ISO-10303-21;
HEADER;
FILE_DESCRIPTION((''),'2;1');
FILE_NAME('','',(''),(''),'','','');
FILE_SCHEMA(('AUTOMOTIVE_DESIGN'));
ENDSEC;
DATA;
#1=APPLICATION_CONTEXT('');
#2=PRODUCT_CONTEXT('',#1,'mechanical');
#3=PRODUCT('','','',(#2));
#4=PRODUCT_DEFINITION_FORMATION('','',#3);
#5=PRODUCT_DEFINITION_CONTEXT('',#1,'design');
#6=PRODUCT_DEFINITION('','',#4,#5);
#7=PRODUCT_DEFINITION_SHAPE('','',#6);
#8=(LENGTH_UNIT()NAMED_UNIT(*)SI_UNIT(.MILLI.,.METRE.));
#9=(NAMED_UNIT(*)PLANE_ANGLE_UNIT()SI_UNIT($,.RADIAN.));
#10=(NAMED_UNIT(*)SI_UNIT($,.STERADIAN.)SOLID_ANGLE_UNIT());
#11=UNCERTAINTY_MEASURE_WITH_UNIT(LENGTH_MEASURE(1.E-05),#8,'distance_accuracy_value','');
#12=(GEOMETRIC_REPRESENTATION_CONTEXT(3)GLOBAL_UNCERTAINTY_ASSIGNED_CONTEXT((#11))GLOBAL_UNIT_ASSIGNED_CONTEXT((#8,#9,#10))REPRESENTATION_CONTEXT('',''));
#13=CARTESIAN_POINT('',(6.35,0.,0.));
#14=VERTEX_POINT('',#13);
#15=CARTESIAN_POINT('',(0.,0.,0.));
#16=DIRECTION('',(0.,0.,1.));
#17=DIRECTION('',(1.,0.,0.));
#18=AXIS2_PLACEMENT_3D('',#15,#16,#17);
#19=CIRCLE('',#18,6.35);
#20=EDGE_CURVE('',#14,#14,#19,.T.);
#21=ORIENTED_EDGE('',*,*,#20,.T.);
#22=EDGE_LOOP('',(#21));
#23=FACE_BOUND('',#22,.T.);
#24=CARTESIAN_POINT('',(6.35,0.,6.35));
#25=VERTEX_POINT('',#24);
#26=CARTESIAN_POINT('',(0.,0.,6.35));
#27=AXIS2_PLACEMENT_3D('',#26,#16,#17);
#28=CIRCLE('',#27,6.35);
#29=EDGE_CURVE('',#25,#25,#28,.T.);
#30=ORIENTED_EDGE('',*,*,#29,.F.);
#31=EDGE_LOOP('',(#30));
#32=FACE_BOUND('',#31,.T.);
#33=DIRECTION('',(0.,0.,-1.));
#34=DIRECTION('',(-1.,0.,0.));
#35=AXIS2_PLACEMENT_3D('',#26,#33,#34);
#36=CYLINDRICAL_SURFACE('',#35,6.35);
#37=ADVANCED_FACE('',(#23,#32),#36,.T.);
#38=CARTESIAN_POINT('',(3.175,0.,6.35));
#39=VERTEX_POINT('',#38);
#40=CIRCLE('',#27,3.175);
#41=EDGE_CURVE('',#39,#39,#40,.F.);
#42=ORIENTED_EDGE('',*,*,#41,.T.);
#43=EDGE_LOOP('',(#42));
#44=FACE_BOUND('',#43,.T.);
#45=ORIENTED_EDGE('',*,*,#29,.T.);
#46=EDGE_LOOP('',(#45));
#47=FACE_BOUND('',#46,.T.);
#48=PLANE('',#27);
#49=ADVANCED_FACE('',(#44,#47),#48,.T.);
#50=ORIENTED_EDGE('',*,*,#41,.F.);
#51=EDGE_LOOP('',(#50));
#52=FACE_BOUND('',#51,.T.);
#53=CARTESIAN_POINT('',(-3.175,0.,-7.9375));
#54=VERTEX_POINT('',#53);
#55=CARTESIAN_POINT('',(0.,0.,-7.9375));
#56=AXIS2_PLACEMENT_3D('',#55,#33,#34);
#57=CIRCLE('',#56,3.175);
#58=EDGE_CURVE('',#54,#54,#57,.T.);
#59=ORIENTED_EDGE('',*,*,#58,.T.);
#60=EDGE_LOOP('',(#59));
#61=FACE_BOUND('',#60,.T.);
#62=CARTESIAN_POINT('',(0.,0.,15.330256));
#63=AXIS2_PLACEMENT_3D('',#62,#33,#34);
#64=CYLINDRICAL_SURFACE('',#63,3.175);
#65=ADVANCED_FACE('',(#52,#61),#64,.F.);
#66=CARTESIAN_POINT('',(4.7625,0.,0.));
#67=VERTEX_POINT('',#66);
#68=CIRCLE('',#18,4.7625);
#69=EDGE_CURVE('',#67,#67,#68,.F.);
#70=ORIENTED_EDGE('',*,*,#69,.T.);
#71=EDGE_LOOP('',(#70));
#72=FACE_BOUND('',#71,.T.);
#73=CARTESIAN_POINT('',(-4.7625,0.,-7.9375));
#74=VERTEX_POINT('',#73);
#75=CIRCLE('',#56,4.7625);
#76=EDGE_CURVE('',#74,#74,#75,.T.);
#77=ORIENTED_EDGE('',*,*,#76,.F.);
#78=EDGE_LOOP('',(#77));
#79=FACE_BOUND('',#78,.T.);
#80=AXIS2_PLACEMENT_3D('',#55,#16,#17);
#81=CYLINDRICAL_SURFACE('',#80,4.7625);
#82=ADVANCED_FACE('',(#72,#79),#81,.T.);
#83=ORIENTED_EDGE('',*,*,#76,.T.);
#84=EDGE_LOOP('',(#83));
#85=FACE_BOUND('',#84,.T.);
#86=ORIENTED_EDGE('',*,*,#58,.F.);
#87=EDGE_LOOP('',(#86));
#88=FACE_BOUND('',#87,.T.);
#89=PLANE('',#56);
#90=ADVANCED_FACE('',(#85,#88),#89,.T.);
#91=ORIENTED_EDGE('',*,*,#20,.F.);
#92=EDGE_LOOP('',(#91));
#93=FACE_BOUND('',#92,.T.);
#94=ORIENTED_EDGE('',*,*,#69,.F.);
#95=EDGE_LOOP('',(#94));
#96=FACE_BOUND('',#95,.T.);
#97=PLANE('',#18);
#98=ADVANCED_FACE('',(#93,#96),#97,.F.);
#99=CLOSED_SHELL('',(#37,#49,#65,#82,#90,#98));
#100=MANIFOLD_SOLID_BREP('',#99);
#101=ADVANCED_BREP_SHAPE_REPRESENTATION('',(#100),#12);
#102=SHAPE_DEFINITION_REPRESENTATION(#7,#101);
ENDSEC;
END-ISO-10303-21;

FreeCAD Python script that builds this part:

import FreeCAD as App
import Part
import Sketcher
from FreeCAD import Vector
Q = App.Units.Quantity

doc = App.newDocument("Part")
params = doc.addObject("Spreadsheet::Sheet", "Params")
for row, (alias, value) in enumerate([
    ("sketch1_diameter", "0.5 in"),
    ("pad1_length", "0.25 in"),
    ("sketch2_diameter", "0.375 in"),
    ("pad2_length", "0.3125 in"),
    ("sketch3_diameter", "0.25 in"),
    ("pocket1_length", "0.5625 in"),
], start=1):
    params.set(f"A{row}", alias)
    params.set(f"B{row}", "=" + value)
    params.setAlias(f"B{row}", alias)

body = doc.addObject("PartDesign::Body", "Body")

sketch1 = body.newObject("Sketcher::SketchObject", "Sketch")
sketch1.AttachmentSupport = (doc.getObject("XY_Plane"), [""])
sketch1.MapMode = "FlatFace"
sketch1.addGeometry(Part.Circle(Vector(0, 0, 0), Vector(0, 0, 1), 6), False)
sketch1.addConstraint(Sketcher.Constraint("Coincident", 0, 3, -1, 1))
sketch1.addConstraint(Sketcher.Constraint("Diameter", 0, Q("0.5 in")))
sketch1.setExpression("Constraints[1]", "Params.sketch1_diameter")
pad1 = body.newObject("PartDesign::Pad", "Pad")
pad1.Profile = sketch1
pad1.setExpression("Length", "Params.pad1_length")

sketch2 = body.newObject("Sketcher::SketchObject", "Sketch001")
sketch2.AttachmentSupport = (doc.getObject("XY_Plane"), [""])
sketch2.MapMode = "FlatFace"
sketch2.addGeometry(Part.Circle(Vector(0, 0, 0), Vector(0, 0, 1), 4.8), False)
sketch2.addConstraint(Sketcher.Constraint("Coincident", 0, 3, -1, 1))
sketch2.addConstraint(Sketcher.Constraint("Diameter", 0, Q("0.375 in")))
sketch2.setExpression("Constraints[1]", "Params.sketch2_diameter")
pad2 = body.newObject("PartDesign::Pad", "Pad001")
pad2.Profile = sketch2
pad2.setExpression("Length", "Params.pad2_length")
pad2.Reversed = True

sketch3 = body.newObject("Sketcher::SketchObject", "Sketch002")
sketch3.AttachmentSupport = (doc.getObject("XY_Plane"), [""])
sketch3.MapMode = "FlatFace"
sketch3.AttachmentOffset = App.Placement(Vector(0, 0, -0.3125 * 25.4), App.Rotation())
sketch3.addGeometry(Part.Circle(Vector(0, 0, 0), Vector(0, 0, 1), 3.2), False)
sketch3.addConstraint(Sketcher.Constraint("Coincident", 0, 3, -1, 1))
sketch3.addConstraint(Sketcher.Constraint("Diameter", 0, Q("0.25 in")))
sketch3.setExpression("Constraints[1]", "Params.sketch3_diameter")
pocket1 = body.newObject("PartDesign::Pocket", "Pocket")
pocket1.Profile = sketch3
pocket1.setExpression("Length", "Params.pocket1_length")
pocket1.Reversed = True

doc.recompute()
